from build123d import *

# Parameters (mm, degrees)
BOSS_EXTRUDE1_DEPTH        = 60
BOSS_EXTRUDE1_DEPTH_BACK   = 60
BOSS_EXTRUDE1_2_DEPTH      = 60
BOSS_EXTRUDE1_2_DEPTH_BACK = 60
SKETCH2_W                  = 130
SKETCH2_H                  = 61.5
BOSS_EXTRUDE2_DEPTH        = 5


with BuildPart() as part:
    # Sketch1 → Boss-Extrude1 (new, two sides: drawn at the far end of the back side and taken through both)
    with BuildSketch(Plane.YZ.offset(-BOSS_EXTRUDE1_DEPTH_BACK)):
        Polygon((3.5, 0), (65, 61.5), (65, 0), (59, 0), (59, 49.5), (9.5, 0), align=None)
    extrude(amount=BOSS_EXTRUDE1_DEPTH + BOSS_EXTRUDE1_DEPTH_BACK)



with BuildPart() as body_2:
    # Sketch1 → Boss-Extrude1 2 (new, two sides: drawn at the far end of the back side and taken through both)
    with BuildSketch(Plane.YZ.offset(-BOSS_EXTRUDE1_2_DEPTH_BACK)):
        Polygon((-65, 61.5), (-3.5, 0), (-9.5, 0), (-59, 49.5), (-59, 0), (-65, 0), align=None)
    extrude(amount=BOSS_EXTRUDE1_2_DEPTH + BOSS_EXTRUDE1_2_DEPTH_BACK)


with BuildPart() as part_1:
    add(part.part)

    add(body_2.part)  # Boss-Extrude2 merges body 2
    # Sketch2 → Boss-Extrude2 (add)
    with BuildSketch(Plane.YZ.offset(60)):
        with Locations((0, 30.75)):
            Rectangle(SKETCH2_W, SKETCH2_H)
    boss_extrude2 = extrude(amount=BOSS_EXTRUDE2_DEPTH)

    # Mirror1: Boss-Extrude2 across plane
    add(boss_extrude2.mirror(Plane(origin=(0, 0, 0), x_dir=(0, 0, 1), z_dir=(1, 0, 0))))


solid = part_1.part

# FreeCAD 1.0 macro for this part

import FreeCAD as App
import Part
import Sketcher

V = App.Vector
Q = App.Units.Quantity

doc = App.newDocument("Part")
body = doc.addObject("PartDesign::Body", "Body")

sketch1 = doc.addObject("Sketcher::SketchObject", "Sketch")
body.addObject(sketch1)
sketch1.AttachmentSupport = (doc.YZ_Plane, [""])
sketch1.MapMode = "FlatFace"
sketch1.addGeometry([
    Part.LineSegment(V(65, 62, 0), V(4, 0, 0)),
    Part.LineSegment(V(4, 0, 0), V(10, 0, 0)),
    Part.LineSegment(V(10, 0, 0), V(59, 50, 0)),
    Part.LineSegment(V(59, 50, 0), V(59, 0, 0)),
    Part.LineSegment(V(59, 0, 0), V(65, 0, 0)),
    Part.LineSegment(V(65, 0, 0), V(65, 62, 0)),
], False)
sketch1.addConstraint([
    Sketcher.Constraint("Coincident", 0, 2, 1, 1),
    Sketcher.Constraint("Coincident", 1, 2, 2, 1),
    Sketcher.Constraint("Coincident", 2, 2, 3, 1),
    Sketcher.Constraint("Coincident", 3, 2, 4, 1),
    Sketcher.Constraint("Coincident", 4, 2, 5, 1),
    Sketcher.Constraint("Coincident", 5, 2, 0, 1),
    Sketcher.Constraint("Horizontal", 1),
    Sketcher.Constraint("Vertical", 3),
    Sketcher.Constraint("Horizontal", 4),
    Sketcher.Constraint("Vertical", 5),
    Sketcher.Constraint("PointOnObject", 0, 2, -1),
    Sketcher.Constraint("PointOnObject", 3, 2, -1),
    Sketcher.Constraint("Parallel", 0, 2),
    Sketcher.Constraint("Equal", 1, 4),
    Sketcher.Constraint("DistanceX", 1, 1, 1, 2, Q("6 mm")),
    Sketcher.Constraint("Angle", 0, Q("-135 deg")),
    Sketcher.Constraint("DistanceY", 3, 2, 3, 1, Q("49.5 mm")),
    Sketcher.Constraint("DistanceX", -1, 1, 2, 2, Q("59 mm")),
])
pad1 = doc.addObject("PartDesign::Pad", "Pad")
body.addObject(pad1)
pad1.Profile = sketch1
pad1.Type = "TwoLengths"
pad1.Length = 60
pad1.Length2 = 60
body2 = doc.addObject("PartDesign::Body", "Body001")

sketch2 = doc.addObject("Sketcher::SketchObject", "Sketch001")
body2.addObject(sketch2)
sketch2.AttachmentSupport = (doc.getObject("YZ_Plane001"), [""])
sketch2.MapMode = "FlatFace"
sketch2.addGeometry([
    Part.LineSegment(V(-4, 0, 0), V(-65, 62, 0)),
    Part.LineSegment(V(-65, 62, 0), V(-65, 0, 0)),
    Part.LineSegment(V(-65, 0, 0), V(-59, 0, 0)),
    Part.LineSegment(V(-59, 0, 0), V(-59, 50, 0)),
    Part.LineSegment(V(-59, 50, 0), V(-10, 0, 0)),
    Part.LineSegment(V(-10, 0, 0), V(-4, 0, 0)),
], False)
sketch2.addConstraint([
    Sketcher.Constraint("Coincident", 0, 2, 1, 1),
    Sketcher.Constraint("Coincident", 1, 2, 2, 1),
    Sketcher.Constraint("Coincident", 2, 2, 3, 1),
    Sketcher.Constraint("Coincident", 3, 2, 4, 1),
    Sketcher.Constraint("Coincident", 4, 2, 5, 1),
    Sketcher.Constraint("Coincident", 5, 2, 0, 1),
    Sketcher.Constraint("Vertical", 1),
    Sketcher.Constraint("Horizontal", 2),
    Sketcher.Constraint("Vertical", 3),
    Sketcher.Constraint("Horizontal", 5),
    Sketcher.Constraint("PointOnObject", 1, 2, -1),
    Sketcher.Constraint("PointOnObject", 4, 2, -1),
    Sketcher.Constraint("Parallel", 0, 4),
    Sketcher.Constraint("Equal", 2, 5),
    Sketcher.Constraint("DistanceX", 2, 1, 2, 2, Q("6 mm")),
    Sketcher.Constraint("Angle", 0, Q("135 deg")),
    Sketcher.Constraint("DistanceY", 1, 2, 1, 1, Q("61.5 mm")),
    Sketcher.Constraint("DistanceX", 0, 2, -1, 1, Q("65 mm")),
])
pad2 = doc.addObject("PartDesign::Pad", "Pad001")
body2.addObject(pad2)
pad2.Profile = sketch2
pad2.Type = "TwoLengths"
pad2.Length = 60
pad2.Length2 = 60
body.AllowCompound = True
doc.recompute()

boolean = doc.addObject("PartDesign::Boolean", "Boolean")
body.addObject(boolean)
boolean.Type = "Fuse"
boolean.addObjects([body2])

sketch3 = doc.addObject("Sketcher::SketchObject", "Sketch002")
body.addObject(sketch3)
sketch3.AttachmentSupport = (doc.YZ_Plane, [""])
sketch3.MapMode = "FlatFace"
sketch3.AttachmentOffset = App.Placement(V(0, 0, 60), App.Rotation())
sketch3.addGeometry([
    Part.LineSegment(V(-65, 62, 0), V(-65, 0, 0)),
    Part.LineSegment(V(-65, 0, 0), V(65, 0, 0)),
    Part.LineSegment(V(65, 0, 0), V(65, 62, 0)),
    Part.LineSegment(V(65, 62, 0), V(-65, 62, 0)),
], False)
sketch3.addConstraint([
    Sketcher.Constraint("Coincident", 0, 2, 1, 1),
    Sketcher.Constraint("Coincident", 1, 2, 2, 1),
    Sketcher.Constraint("Coincident", 2, 2, 3, 1),
    Sketcher.Constraint("Coincident", 3, 2, 0, 1),
    Sketcher.Constraint("Vertical", 0),
    Sketcher.Constraint("Horizontal", 1),
    Sketcher.Constraint("Vertical", 2),
    Sketcher.Constraint("Horizontal", 3),
    Sketcher.Constraint("Symmetric", 0, 2, 1, 2, -1, 1),
    Sketcher.Constraint("DistanceX", 1, 1, 1, 2, Q("130 mm")),
    Sketcher.Constraint("DistanceY", 0, 2, 0, 1, Q("61.5 mm")),
])
pad3 = doc.addObject("PartDesign::Pad", "Pad002")
body.addObject(pad3)
pad3.Profile = sketch3
pad3.Length = 5
doc.recompute()

mirrored = doc.addObject("PartDesign::Mirrored", "Mirrored")
body.addObject(mirrored)
mirrored.Originals = [pad3]
mirrored.MirrorPlane = (doc.YZ_Plane, [""])
body.Tip = mirrored

doc.recompute()
